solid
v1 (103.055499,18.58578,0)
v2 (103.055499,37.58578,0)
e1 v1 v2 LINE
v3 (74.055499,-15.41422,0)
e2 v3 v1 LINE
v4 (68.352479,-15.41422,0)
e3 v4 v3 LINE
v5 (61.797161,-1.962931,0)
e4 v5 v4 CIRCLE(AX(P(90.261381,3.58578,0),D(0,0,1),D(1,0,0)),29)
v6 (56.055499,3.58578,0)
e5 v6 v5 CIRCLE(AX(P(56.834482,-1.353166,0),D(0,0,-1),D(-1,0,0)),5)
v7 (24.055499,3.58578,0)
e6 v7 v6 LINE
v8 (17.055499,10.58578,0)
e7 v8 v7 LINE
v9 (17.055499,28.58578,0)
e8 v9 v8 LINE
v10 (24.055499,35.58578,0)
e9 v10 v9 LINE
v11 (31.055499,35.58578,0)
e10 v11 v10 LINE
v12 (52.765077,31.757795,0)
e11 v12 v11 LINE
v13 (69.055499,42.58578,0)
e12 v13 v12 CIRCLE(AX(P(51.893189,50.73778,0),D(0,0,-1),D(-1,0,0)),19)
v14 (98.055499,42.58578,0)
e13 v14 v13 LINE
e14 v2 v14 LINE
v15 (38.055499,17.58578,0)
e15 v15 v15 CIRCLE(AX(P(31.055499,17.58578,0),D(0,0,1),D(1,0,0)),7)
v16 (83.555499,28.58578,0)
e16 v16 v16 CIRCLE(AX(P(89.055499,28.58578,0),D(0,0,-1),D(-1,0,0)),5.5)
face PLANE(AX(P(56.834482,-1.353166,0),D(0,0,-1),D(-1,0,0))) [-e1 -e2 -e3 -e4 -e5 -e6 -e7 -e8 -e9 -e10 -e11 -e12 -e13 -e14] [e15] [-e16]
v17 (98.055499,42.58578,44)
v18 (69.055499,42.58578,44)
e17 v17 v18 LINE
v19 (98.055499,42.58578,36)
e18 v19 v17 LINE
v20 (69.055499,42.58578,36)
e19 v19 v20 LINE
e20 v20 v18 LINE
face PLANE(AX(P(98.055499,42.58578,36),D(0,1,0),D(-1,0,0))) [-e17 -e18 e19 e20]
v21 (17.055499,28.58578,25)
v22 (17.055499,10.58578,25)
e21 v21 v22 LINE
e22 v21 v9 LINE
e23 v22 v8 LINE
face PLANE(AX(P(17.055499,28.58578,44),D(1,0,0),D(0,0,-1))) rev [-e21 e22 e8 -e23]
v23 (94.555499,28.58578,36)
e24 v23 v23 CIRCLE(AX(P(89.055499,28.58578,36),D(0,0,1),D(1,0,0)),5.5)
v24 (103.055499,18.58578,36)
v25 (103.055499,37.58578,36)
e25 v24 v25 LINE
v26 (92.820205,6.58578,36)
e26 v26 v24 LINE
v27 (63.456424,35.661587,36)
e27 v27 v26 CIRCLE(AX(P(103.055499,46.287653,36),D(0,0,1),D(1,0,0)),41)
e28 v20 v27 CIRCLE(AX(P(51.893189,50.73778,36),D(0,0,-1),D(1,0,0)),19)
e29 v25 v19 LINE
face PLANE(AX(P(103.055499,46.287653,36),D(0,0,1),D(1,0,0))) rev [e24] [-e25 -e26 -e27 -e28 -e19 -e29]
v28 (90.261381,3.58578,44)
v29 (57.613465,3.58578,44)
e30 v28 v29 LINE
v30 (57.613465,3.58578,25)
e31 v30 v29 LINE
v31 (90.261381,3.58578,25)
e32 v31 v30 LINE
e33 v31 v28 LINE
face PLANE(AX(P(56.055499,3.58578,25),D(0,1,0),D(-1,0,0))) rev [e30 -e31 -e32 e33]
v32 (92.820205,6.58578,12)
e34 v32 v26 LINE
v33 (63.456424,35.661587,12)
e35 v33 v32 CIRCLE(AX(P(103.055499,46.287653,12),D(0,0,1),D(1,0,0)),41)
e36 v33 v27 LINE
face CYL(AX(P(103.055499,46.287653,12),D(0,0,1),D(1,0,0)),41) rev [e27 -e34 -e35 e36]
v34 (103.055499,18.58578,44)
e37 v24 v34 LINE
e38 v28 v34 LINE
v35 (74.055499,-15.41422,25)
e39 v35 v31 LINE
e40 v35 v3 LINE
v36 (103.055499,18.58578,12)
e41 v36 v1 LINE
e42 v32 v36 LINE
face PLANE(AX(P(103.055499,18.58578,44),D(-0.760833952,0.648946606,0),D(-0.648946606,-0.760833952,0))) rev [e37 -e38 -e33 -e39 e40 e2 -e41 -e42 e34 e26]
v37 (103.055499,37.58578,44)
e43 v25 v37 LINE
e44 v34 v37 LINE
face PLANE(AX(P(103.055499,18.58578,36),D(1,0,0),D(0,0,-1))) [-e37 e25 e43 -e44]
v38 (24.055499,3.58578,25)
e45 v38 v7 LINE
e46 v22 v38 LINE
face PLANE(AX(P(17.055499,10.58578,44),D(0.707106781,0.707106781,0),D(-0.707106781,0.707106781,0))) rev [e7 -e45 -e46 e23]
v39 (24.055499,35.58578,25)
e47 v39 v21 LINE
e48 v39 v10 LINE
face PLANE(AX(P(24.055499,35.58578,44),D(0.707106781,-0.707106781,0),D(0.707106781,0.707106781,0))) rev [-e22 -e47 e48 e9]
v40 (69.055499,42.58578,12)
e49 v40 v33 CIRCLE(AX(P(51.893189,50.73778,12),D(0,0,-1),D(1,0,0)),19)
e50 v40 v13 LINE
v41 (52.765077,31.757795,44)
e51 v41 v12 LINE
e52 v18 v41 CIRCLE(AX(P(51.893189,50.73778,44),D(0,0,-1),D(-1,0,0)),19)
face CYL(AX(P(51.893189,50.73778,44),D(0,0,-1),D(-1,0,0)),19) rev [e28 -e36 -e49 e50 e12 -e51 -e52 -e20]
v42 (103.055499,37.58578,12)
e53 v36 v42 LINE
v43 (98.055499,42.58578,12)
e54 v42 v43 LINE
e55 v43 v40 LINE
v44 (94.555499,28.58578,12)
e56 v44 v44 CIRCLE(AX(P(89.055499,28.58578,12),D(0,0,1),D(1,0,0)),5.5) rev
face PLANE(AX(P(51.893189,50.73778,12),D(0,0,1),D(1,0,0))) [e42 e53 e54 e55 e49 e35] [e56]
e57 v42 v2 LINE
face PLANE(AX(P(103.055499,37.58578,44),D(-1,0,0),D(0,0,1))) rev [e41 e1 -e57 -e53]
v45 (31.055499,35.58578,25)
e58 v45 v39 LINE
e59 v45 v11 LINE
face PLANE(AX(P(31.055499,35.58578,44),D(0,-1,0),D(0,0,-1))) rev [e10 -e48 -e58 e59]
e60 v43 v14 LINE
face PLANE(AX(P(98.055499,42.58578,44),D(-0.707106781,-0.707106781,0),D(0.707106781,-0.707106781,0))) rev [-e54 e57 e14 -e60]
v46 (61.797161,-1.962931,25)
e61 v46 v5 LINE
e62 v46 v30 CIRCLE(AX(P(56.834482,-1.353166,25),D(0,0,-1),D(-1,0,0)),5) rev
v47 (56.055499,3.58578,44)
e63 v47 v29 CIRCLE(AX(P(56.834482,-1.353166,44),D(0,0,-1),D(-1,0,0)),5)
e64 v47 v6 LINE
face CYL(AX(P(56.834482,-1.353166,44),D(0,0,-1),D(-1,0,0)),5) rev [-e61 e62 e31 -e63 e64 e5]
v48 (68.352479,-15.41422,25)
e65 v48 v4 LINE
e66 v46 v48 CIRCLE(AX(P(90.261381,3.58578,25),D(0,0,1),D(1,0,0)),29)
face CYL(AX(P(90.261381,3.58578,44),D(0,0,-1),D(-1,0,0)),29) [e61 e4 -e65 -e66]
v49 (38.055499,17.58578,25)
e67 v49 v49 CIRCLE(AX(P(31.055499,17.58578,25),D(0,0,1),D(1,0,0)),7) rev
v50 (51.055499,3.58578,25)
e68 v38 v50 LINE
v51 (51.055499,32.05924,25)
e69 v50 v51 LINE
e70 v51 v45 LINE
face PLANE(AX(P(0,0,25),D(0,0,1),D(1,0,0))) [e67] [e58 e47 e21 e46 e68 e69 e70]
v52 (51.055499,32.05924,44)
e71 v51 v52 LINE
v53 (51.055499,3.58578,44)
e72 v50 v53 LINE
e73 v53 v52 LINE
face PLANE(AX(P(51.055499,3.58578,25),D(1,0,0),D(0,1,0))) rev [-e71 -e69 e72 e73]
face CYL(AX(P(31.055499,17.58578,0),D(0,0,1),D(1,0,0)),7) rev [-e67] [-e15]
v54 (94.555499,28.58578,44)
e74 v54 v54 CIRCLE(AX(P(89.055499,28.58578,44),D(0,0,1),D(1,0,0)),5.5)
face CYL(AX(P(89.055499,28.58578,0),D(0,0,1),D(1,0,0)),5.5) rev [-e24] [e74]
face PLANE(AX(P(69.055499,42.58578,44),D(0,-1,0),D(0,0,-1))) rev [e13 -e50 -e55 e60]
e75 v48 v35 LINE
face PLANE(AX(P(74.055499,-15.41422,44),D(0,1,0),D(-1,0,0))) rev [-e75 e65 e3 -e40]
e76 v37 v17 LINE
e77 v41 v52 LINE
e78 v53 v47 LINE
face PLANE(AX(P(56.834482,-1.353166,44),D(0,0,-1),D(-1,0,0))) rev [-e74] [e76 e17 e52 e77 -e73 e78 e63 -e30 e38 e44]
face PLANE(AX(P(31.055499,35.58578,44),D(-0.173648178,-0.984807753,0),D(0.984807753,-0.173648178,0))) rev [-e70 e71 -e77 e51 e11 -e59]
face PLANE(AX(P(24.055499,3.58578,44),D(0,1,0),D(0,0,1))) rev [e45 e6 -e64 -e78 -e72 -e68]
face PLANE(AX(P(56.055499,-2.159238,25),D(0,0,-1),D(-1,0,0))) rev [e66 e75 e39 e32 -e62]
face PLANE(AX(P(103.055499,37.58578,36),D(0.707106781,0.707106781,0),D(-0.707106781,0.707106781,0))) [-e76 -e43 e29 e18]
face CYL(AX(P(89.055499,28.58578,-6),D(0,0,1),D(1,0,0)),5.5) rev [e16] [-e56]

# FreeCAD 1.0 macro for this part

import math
import FreeCAD as App
import Part
import Sketcher
Q = App.Units.Quantity


def add_polygon(sketch, points):
    """Adds a closed chain of lines whose ends are joined by coincident constraints."""
    first, n = sketch.GeometryCount, len(points)
    for a, b in zip(points, points[1:] + points[:1]):
        sketch.addGeometry(Part.LineSegment(App.Vector(*a, 0), App.Vector(*b, 0)), False)
    for i in range(n):
        sketch.addConstraint(Sketcher.Constraint("Coincident", first + i, 2, first + (i + 1) % n, 1))

doc = App.newDocument("Part")
body = doc.addObject("PartDesign::Body", "Body")

# Sketch on XY plane
sketch1 = body.newObject("Sketcher::SketchObject", "Sketch")
sketch1.AttachmentSupport = (doc.getObject("XY_Plane"), [""])
sketch1.MapMode = "FlatFace"
sketch1.addGeometry([
    Part.LineSegment(App.Vector(98.055499, 42.58578, 0), App.Vector(69.055499, 42.58578, 0)),  # 0
    Part.ArcOfCircle(Part.Circle(App.Vector(51.893189, 50.73778, 0), App.Vector(0, 0, 1), 19), math.radians(-87.369836), math.radians(-25.407453)),  # 1
    Part.LineSegment(App.Vector(52.765077, 31.757795, 0), App.Vector(31.055499, 35.58578, 0)),  # 2
    Part.LineSegment(App.Vector(31.055499, 35.58578, 0), App.Vector(24.055499, 35.58578, 0)),  # 3
    Part.LineSegment(App.Vector(24.055499, 35.58578, 0), App.Vector(17.055499, 28.58578, 0)),  # 4
    Part.LineSegment(App.Vector(17.055499, 28.58578, 0), App.Vector(17.055499, 10.58578, 0)),  # 5
    Part.LineSegment(App.Vector(17.055499, 10.58578, 0), App.Vector(24.055499, 3.58578, 0)),  # 6
    Part.LineSegment(App.Vector(24.055499, 3.58578, 0), App.Vector(56.055499, 3.58578, 0)),  # 7
    Part.ArcOfCircle(Part.Circle(App.Vector(56.834482, -1.353166, 0), App.Vector(0, 0, 1), 5), math.radians(-7.004827), math.radians(98.963001)),  # 8
    Part.ArcOfCircle(Part.Circle(App.Vector(90.261381, 3.58578, 0), App.Vector(0, 0, 1), 29), math.radians(-168.969305), math.radians(-139.067275)),  # 9
    Part.LineSegment(App.Vector(68.352479, -15.41422, 0), App.Vector(74.055499, -15.41422, 0)),  # 10
    Part.LineSegment(App.Vector(74.055499, -15.41422, 0), App.Vector(103.055499, 18.58578, 0)),  # 11
    Part.LineSegment(App.Vector(103.055499, 18.58578, 0), App.Vector(103.055499, 37.58578, 0)),  # 12
    Part.LineSegment(App.Vector(103.055499, 37.58578, 0), App.Vector(98.055499, 42.58578, 0)),  # 13
], False)
sketch1.addConstraint([
    Sketcher.Constraint("Coincident", 0, 2, 1, 2),
    Sketcher.Constraint("Coincident", 1, 1, 2, 1),
    Sketcher.Constraint("Coincident", 2, 2, 3, 1),
    Sketcher.Constraint("Coincident", 3, 2, 4, 1),
    Sketcher.Constraint("Coincident", 4, 2, 5, 1),
    Sketcher.Constraint("Coincident", 5, 2, 6, 1),
    Sketcher.Constraint("Coincident", 6, 2, 7, 1),
    Sketcher.Constraint("Coincident", 7, 2, 8, 2),
    Sketcher.Constraint("Coincident", 8, 1, 9, 1),
    Sketcher.Constraint("Coincident", 9, 2, 10, 1),
    Sketcher.Constraint("Coincident", 10, 2, 11, 1),
    Sketcher.Constraint("Coincident", 11, 2, 12, 1),
    Sketcher.Constraint("Coincident", 12, 2, 13, 1),
    Sketcher.Constraint("Coincident", 13, 2, 0, 1),
    Sketcher.Constraint("Horizontal", 0),
    Sketcher.Constraint("Horizontal", 3),
    Sketcher.Constraint("Vertical", 5),
    Sketcher.Constraint("Horizontal", 7),
    Sketcher.Constraint("Horizontal", 10),
    Sketcher.Constraint("Vertical", 12),
    Sketcher.Constraint("Perpendicular", 4, 6),
    Sketcher.Constraint("Parallel", 6, 13),
    Sketcher.Constraint("Horizontal", 9, 3, 6, 2),
    Sketcher.Constraint("Vertical", 3, 2, 6, 2),
    Sketcher.Constraint("Equal", 4, 6),
    Sketcher.Constraint("Radius", 1, 19.0),
    Sketcher.Constraint("Radius", 8, 5.0),
    Sketcher.Constraint("Radius", 9, 29.0),
    Sketcher.Constraint("DistanceX", 0, 2, 0, 1, 29.0),
    Sketcher.Constraint("DistanceX", 3, 2, 3, 1, 7.0),
    Sketcher.Constraint("DistanceX", 7, 1, 7, 2, 32.0),
    Sketcher.Constraint("DistanceY", 5, 2, 5, 1, 18.0),
    Sketcher.Constraint("DistanceY", 12, 1, 12, 2, 19.0),
    Sketcher.Constraint("Angle", 2, Q("170 deg")),
    Sketcher.Constraint("DistanceY", 9, 3, 0, 2, 39.0),
    Sketcher.Constraint("DistanceX", 2, 2, 0, 2, 38.0),
    Sketcher.Constraint("DistanceY", 2, 2, 0, 2, 7.0),
    Sketcher.Constraint("DistanceY", 9, 2, 7, 2, 19.0),
    Sketcher.Constraint("DistanceX", 7, 2, 10, 2, 18.0),
    Sketcher.Constraint("DistanceY", 9, 3, 11, 2, 15.0),
    Sketcher.Constraint("DistanceY", 9, 3, 1, 3, 47.152),
    Sketcher.Constraint("DistanceX", 10, 1, 10, 2, 5.70302),
    Sketcher.Constraint("DistanceX", -1, 1, 0, 2, 69.055499),
    Sketcher.Constraint("DistanceX", 8, 3, 9, 3, 33.426899),
    Sketcher.Constraint("DistanceY", -1, 1, 1, 3, 50.73778),
])
pad1 = body.newObject("PartDesign::Pad", "Pad")
pad1.Profile = sketch1
pad1.Length = 44

# Sketch on XY plane
sketch2 = body.newObject("Sketcher::SketchObject", "Sketch001")
sketch2.AttachmentSupport = (doc.getObject("XY_Plane"), [""])
sketch2.MapMode = "FlatFace"
sketch2.AttachmentOffset = App.Placement(App.Vector(0, 0, 44), App.Rotation())
sketch2.addGeometry(Part.Circle(App.Vector(31.055499, 17.58578, 0), App.Vector(0, 0, 1), 7), False)
sketch2.addConstraint([
    Sketcher.Constraint("Diameter", 0, 14.0),
    Sketcher.Constraint("DistanceX", -1, 1, 0, 3, 31.055499),
    Sketcher.Constraint("DistanceY", -1, 1, 0, 3, 17.58578),
])
pocket1 = body.newObject("PartDesign::Pocket", "Pocket")
pocket1.Profile = sketch2
pocket1.Length = 44

# Sketch on XY plane
sketch3 = body.newObject("Sketcher::SketchObject", "Sketch002")
sketch3.AttachmentSupport = (doc.getObject("XY_Plane"), [""])
sketch3.MapMode = "FlatFace"
sketch3.AttachmentOffset = App.Placement(App.Vector(0, 0, 44), App.Rotation())
add_polygon(sketch3, [(17.055499, 28.58578), (17.055499, 10.58578), (24.055499, 3.58578), (51.055499, 3.58578), (51.055499, 32.05924), (31.055499, 35.58578), (24.055499, 35.58578)])  # lines 0-6
sketch3.addConstraint([
    Sketcher.Constraint("Vertical", 0),
    Sketcher.Constraint("Horizontal", 2),
    Sketcher.Constraint("Vertical", 3),
    Sketcher.Constraint("Horizontal", 5),
    Sketcher.Constraint("Perpendicular", 1, 6),
    Sketcher.Constraint("Vertical", 1, 2, 5, 2),
    Sketcher.Constraint("Equal", 1, 6),
    Sketcher.Constraint("DistanceX", 2, 1, 2, 2, 27.0),
    Sketcher.Constraint("DistanceX", 5, 2, 5, 1, 7.0),
    Sketcher.Constraint("DistanceY", 0, 2, 0, 1, 18.0),
    Sketcher.Constraint("Angle", 4, Q("170 deg")),
    Sketcher.Constraint("DistanceX", 0, 2, 1, 2, 7.0),
    Sketcher.Constraint("DistanceX", -1, 1, 0, 2, 17.055499),
    Sketcher.Constraint("DistanceY", -1, 1, 0, 2, 10.58578),
])
pocket2 = body.newObject("PartDesign::Pocket", "Pocket001")
pocket2.Profile = sketch3
pocket2.Length = 19

# Sketch on XY plane
sketch4 = body.newObject("Sketcher::SketchObject", "Sketch003")
sketch4.AttachmentSupport = (doc.getObject("XY_Plane"), [""])
sketch4.MapMode = "FlatFace"
sketch4.AttachmentOffset = App.Placement(App.Vector(0, 0, 44), App.Rotation())
sketch4.addGeometry(Part.Circle(App.Vector(89.055499, 28.58578, 0), App.Vector(0, 0, 1), 5.5), False)
sketch4.addConstraint([
    Sketcher.Constraint("Diameter", 0, 11.0),
    Sketcher.Constraint("DistanceX", -1, 1, 0, 3, 89.055499),
    Sketcher.Constraint("DistanceY", -1, 1, 0, 3, 28.58578),
])
pocket3 = body.newObject("PartDesign::Pocket", "Pocket002")
pocket3.Profile = sketch4
pocket3.Length = 50

# Sketch on XY plane
sketch5 = body.newObject("Sketcher::SketchObject", "Sketch004")
sketch5.AttachmentSupport = (doc.getObject("XY_Plane"), [""])
sketch5.MapMode = "FlatFace"
sketch5.AttachmentOffset = App.Placement(App.Vector(0, 0, 25), App.Rotation())
sketch5.addGeometry([
    Part.LineSegment(App.Vector(90.261381, 3.58578, 0), App.Vector(56.055499, 3.58578, 0)),  # 0
    Part.ArcOfCircle(Part.Circle(App.Vector(56.055499, -2.159238, 0), App.Vector(0, 0, 1), 5.745017), math.radians(1.958174), math.radians(90)),  # 1
    Part.ArcOfCircle(Part.Circle(App.Vector(90.261381, 3.58578, 0), App.Vector(0, 0, 1), 29), math.radians(-168.969305), math.radians(-139.067275)),  # 2
    Part.LineSegment(App.Vector(68.352479, -15.41422, 0), App.Vector(74.055499, -15.41422, 0)),  # 3
    Part.LineSegment(App.Vector(74.055499, -15.41422, 0), App.Vector(90.261381, 3.58578, 0)),  # 4
], False)
sketch5.addConstraint([
    Sketcher.Constraint("Tangent", 0, 2, 1, 2),
    Sketcher.Constraint("Coincident", 1, 1, 2, 1),
    Sketcher.Constraint("Coincident", 2, 2, 3, 1),
    Sketcher.Constraint("Coincident", 3, 2, 4, 1),
    Sketcher.Constraint("Coincident", 4, 2, 0, 1),
    Sketcher.Constraint("Horizontal", 0),
    Sketcher.Constraint("Horizontal", 3),
    Sketcher.Constraint("Coincident", 4, 2, 2, 3),
    Sketcher.Constraint("Radius", 2, 29.0),
    Sketcher.Constraint("DistanceY", 2, 2, 0, 2, 19.0),
    Sketcher.Constraint("DistanceX", 1, 3, 3, 2, 18.0),
    Sketcher.Constraint("Radius", 1, 5.745017),
    Sketcher.Constraint("DistanceX", 3, 1, 3, 2, 5.70302),
    Sketcher.Constraint("DistanceX", -1, 1, 1, 3, 56.055499),
    Sketcher.Constraint("DistanceY", -1, 1, 2, 3, 3.58578),
])
pocket4 = body.newObject("PartDesign::Pocket", "Pocket003")
pocket4.Profile = sketch5
pocket4.Length = 19
pocket4.Reversed = True

# Sketch on XY plane
sketch6 = body.newObject("Sketcher::SketchObject", "Sketch005")
sketch6.AttachmentSupport = (doc.getObject("XY_Plane"), [""])
sketch6.MapMode = "FlatFace"
sketch6.AttachmentOffset = App.Placement(App.Vector(0, 0, 12), App.Rotation())
sketch6.addGeometry([
    Part.LineSegment(App.Vector(98.055499, 42.58578, 0), App.Vector(69.055499, 42.58578, 0)),  # 0
    Part.ArcOfCircle(Part.Circle(App.Vector(51.893189, 50.73778, 0), App.Vector(0, 0, 1), 19), math.radians(-52.512282), math.radians(-25.407453)),  # 1
    Part.ArcOfCircle(Part.Circle(App.Vector(103.055499, 46.287653, 0), App.Vector(0, 0, 1), 41), math.radians(-164.979042), math.radians(-104.456288)),  # 2
    Part.LineSegment(App.Vector(92.820205, 6.58578, 0), App.Vector(103.055499, 18.58578, 0)),  # 3
    Part.LineSegment(App.Vector(103.055499, 18.58578, 0), App.Vector(103.055499, 37.58578, 0)),  # 4
    Part.LineSegment(App.Vector(103.055499, 37.58578, 0), App.Vector(98.055499, 42.58578, 0)),  # 5
], False)
sketch6.addConstraint([
    Sketcher.Constraint("Coincident", 0, 2, 1, 2),
    Sketcher.Constraint("Coincident", 1, 1, 2, 1),
    Sketcher.Constraint("Coincident", 2, 2, 3, 1),
    Sketcher.Constraint("Coincident", 3, 2, 4, 1),
    Sketcher.Constraint("Coincident", 4, 2, 5, 1),
    Sketcher.Constraint("Coincident", 5, 2, 0, 1),
    Sketcher.Constraint("Horizontal", 0),
    Sketcher.Constraint("Vertical", 4),
    Sketcher.Constraint("Vertical", 2, 3, 3, 2),
    Sketcher.Constraint("Radius", 1, 19.0),
    Sketcher.Constraint("Radius", 2, 41.0),
    Sketcher.Constraint("DistanceX", 0, 2, 0, 1, 29.0),
    Sketcher.Constraint("DistanceY", 4, 1, 4, 2, 19.0),
    Sketcher.Constraint("Angle", 5, Q("135 deg")),
    Sketcher.Constraint("DistanceX", 0, 2, 2, 3, 34.0),
    Sketcher.Constraint("DistanceY", 2, 2, 0, 2, 36.0),
    Sketcher.Constraint("DistanceY", 0, 2, 1, 3, 8.152),
    Sketcher.Constraint("DistanceX", -1, 1, 2, 3, 103.055499),
    Sketcher.Constraint("DistanceY", -1, 1, 1, 3, 50.73778),
    Sketcher.Constraint("DistanceX", 1, 1, 2, 2, 29.363781),
])
pocket5 = body.newObject("PartDesign::Pocket", "Pocket004")
pocket5.Profile = sketch6
pocket5.Length = 32
pocket5.Reversed = True

# Sketch on XY plane
sketch7 = body.newObject("Sketcher::SketchObject", "Sketch006")
sketch7.AttachmentSupport = (doc.getObject("XY_Plane"), [""])
sketch7.MapMode = "FlatFace"
sketch7.AttachmentOffset = App.Placement(App.Vector(0, 0, 36), App.Rotation())
sketch7.addGeometry([
    Part.LineSegment(App.Vector(92.820205, 6.58578, 0), App.Vector(103.055499, 18.58578, 0)),  # 0
    Part.LineSegment(App.Vector(103.055499, 18.58578, 0), App.Vector(103.055499, 37.58578, 0)),  # 1
    Part.LineSegment(App.Vector(103.055499, 37.58578, 0), App.Vector(98.055499, 42.58578, 0)),  # 2
    Part.LineSegment(App.Vector(98.055499, 42.58578, 0), App.Vector(69.055499, 42.58578, 0)),  # 3
    Part.ArcOfCircle(Part.Circle(App.Vector(51.893189, 50.73778, 0), App.Vector(0, 0, 1), 19), math.radians(-52.512282), math.radians(-25.407453)),  # 4
    Part.ArcOfCircle(Part.Circle(App.Vector(103.055499, 46.287653, 0), App.Vector(0, 0, 1), 41), math.radians(-164.979042), math.radians(-104.456288)),  # 5
], False)
sketch7.addConstraint([
    Sketcher.Constraint("Coincident", 0, 2, 1, 1),
    Sketcher.Constraint("Coincident", 1, 2, 2, 1),
    Sketcher.Constraint("Coincident", 2, 2, 3, 1),
    Sketcher.Constraint("Coincident", 3, 2, 4, 2),
    Sketcher.Constraint("Coincident", 4, 1, 5, 1),
    Sketcher.Constraint("Coincident", 5, 2, 0, 1),
    Sketcher.Constraint("Vertical", 1),
    Sketcher.Constraint("Horizontal", 3),
    Sketcher.Constraint("Vertical", 5, 3, 0, 2),
    Sketcher.Constraint("Radius", 4, 19.0),
    Sketcher.Constraint("Radius", 5, 41.0),
    Sketcher.Constraint("DistanceX", 3, 2, 3, 1, 29.0),
    Sketcher.Constraint("DistanceY", 1, 1, 1, 2, 19.0),
    Sketcher.Constraint("Angle", 2, Q("135 deg")),
    Sketcher.Constraint("DistanceX", 2, 2, 5, 3, 5.0),
    Sketcher.Constraint("DistanceY", 5, 2, 0, 2, 12.0),
    Sketcher.Constraint("DistanceY", 0, 2, 4, 3, 32.152),
    Sketcher.Constraint("DistanceX", -1, 1, 5, 3, 103.055499),
    Sketcher.Constraint("DistanceY", -1, 1, 4, 3, 50.73778),
    Sketcher.Constraint("DistanceX", 4, 1, 5, 2, 29.363781),
])
pad2 = body.newObject("PartDesign::Pad", "Pad001")
pad2.Profile = sketch7
pad2.Length = 8

# Sketch on XY plane
sketch8 = body.newObject("Sketcher::SketchObject", "Sketch007")
sketch8.AttachmentSupport = (doc.getObject("XY_Plane"), [""])
sketch8.MapMode = "FlatFace"
sketch8.AttachmentOffset = App.Placement(App.Vector(0, 0, 44), App.Rotation())
sketch8.addGeometry(Part.Circle(App.Vector(89.055499, 28.58578, 0), App.Vector(0, 0, 1), 5.5), False)
sketch8.addConstraint([
    Sketcher.Constraint("Diameter", 0, 11.0),
    Sketcher.Constraint("DistanceX", -1, 1, 0, 3, 89.055499),
    Sketcher.Constraint("DistanceY", -1, 1, 0, 3, 28.58578),
])
pocket6 = body.newObject("PartDesign::Pocket", "Pocket005")
pocket6.Profile = sketch8
pocket6.Length = 44

doc.recompute()
